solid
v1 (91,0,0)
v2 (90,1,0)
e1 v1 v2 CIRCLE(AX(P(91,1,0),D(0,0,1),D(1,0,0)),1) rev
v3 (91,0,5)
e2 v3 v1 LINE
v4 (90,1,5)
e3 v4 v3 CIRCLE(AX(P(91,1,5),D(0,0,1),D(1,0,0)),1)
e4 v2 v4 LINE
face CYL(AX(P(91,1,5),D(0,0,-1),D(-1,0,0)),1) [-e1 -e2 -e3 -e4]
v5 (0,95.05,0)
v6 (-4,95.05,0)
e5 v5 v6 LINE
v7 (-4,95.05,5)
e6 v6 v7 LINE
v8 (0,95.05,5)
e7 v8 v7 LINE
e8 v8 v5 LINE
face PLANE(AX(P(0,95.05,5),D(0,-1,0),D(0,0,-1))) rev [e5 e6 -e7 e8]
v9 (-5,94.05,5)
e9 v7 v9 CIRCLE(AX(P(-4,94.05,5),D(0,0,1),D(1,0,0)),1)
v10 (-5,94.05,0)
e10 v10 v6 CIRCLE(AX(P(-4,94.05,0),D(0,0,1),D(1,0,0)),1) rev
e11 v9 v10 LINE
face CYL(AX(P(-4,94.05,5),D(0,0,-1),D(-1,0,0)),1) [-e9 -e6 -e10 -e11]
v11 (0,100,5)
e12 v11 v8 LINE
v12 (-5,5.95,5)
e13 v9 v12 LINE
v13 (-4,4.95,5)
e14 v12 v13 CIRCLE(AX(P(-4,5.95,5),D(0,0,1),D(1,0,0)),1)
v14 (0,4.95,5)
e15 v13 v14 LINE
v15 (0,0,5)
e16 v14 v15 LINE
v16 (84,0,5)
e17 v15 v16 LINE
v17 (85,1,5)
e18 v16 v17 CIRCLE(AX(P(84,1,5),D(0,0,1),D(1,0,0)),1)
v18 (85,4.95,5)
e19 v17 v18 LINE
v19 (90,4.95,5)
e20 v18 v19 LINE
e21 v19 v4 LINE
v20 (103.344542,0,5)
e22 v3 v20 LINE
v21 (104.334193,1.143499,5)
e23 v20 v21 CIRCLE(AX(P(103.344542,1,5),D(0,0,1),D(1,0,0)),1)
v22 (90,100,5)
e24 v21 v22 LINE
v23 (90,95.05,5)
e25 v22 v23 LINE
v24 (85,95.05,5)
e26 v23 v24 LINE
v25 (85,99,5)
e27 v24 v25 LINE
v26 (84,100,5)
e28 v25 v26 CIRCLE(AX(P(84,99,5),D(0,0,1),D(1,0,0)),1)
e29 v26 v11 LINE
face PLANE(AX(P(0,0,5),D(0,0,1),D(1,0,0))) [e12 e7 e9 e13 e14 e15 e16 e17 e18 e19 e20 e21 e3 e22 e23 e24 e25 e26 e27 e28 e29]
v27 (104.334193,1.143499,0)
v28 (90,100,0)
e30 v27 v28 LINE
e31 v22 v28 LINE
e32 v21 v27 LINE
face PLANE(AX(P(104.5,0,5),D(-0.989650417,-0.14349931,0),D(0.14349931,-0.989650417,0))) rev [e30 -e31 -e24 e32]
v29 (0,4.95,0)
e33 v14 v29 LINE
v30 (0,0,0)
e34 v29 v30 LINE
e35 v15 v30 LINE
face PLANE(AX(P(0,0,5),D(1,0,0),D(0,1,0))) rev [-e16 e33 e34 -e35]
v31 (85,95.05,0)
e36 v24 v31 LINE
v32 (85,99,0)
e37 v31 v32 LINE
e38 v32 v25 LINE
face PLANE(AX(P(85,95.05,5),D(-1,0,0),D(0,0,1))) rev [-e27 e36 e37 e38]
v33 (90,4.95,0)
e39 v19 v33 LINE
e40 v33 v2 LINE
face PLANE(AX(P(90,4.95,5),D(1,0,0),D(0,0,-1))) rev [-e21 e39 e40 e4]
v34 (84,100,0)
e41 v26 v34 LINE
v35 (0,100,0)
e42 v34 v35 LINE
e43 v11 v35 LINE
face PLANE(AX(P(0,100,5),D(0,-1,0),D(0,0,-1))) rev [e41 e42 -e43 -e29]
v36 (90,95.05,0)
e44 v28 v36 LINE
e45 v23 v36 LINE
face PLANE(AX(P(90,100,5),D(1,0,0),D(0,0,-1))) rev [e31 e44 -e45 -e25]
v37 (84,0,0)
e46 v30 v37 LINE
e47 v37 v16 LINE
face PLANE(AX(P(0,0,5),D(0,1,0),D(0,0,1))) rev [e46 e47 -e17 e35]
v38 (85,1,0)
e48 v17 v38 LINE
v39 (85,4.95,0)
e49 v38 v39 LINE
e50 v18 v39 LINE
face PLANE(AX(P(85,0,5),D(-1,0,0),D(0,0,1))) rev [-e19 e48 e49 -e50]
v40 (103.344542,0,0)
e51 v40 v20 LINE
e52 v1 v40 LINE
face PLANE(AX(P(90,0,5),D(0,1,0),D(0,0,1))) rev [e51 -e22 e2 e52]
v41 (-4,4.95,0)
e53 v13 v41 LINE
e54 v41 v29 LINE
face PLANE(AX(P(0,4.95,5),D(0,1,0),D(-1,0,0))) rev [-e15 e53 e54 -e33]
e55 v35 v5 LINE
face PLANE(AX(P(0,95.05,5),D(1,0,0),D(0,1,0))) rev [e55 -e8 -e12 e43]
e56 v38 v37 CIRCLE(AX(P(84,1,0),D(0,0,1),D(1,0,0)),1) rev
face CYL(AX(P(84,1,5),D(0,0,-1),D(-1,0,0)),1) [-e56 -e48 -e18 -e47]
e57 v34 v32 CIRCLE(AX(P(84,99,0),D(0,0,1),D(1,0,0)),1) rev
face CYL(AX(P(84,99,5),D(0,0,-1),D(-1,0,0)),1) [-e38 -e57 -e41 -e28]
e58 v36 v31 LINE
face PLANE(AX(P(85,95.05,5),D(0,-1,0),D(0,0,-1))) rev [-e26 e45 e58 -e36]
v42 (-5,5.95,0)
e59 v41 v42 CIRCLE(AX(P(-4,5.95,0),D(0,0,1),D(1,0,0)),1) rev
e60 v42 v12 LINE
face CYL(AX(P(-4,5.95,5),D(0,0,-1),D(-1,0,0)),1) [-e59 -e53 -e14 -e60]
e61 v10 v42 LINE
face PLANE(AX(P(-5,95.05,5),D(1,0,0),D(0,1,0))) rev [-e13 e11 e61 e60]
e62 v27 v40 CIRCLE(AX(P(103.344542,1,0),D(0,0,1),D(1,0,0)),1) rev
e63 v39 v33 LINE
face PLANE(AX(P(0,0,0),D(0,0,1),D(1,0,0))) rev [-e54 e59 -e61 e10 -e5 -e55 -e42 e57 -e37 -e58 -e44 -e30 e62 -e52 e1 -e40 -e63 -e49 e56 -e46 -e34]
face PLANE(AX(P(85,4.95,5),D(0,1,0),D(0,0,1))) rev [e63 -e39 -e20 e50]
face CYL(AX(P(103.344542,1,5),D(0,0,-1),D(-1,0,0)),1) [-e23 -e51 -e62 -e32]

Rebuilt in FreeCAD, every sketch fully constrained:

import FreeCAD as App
import Part
import Sketcher
from FreeCAD import Vector


def edges_at(feature, points):
    """Names of the edges that pass closest to the given points."""
    edges = feature.Shape.Edges
    near = lambda p: min(range(len(edges)), key=lambda i: edges[i].distToShape(Part.Vertex(*p))[0])
    return sorted({f"Edge{near(p) + 1}" for p in points})


def add_polygon(sketch, points):
    """Adds a closed chain of lines whose ends are joined by coincident constraints."""
    first, n = sketch.GeometryCount, len(points)
    for a, b in zip(points, points[1:] + points[:1]):
        sketch.addGeometry(Part.LineSegment(App.Vector(*a, 0), App.Vector(*b, 0)), False)
    for i in range(n):
        sketch.addConstraint(Sketcher.Constraint("Coincident", first + i, 2, first + (i + 1) % n, 1))

doc = App.newDocument("Part")
body = doc.addObject("PartDesign::Body", "Body")

# Sketch on XY plane
sketch1 = body.newObject("Sketcher::SketchObject", "Sketch")
sketch1.AttachmentSupport = (doc.getObject("XY_Plane"), [""])
sketch1.MapMode = "FlatFace"
add_polygon(sketch1, [(0, 100), (0, 95), (-5, 95), (-5, 5), (0, 5), (0, 0), (85, 0), (85, 5), (90, 5), (90, 0), (104.5, 0), (90, 100), (90, 95), (85, 95), (85, 100)])  # lines 0-14
sketch1.addConstraint([
    Sketcher.Constraint("Vertical", 0),
    Sketcher.Constraint("Horizontal", 1),
    Sketcher.Constraint("Vertical", 2),
    Sketcher.Constraint("Horizontal", 3),
    Sketcher.Constraint("Vertical", 4),
    Sketcher.Constraint("Horizontal", 5),
    Sketcher.Constraint("Vertical", 6),
    Sketcher.Constraint("Horizontal", 7),
    Sketcher.Constraint("Vertical", 8),
    Sketcher.Constraint("Horizontal", 9),
    Sketcher.Constraint("Vertical", 11),
    Sketcher.Constraint("Horizontal", 12),
    Sketcher.Constraint("Vertical", 13),
    Sketcher.Constraint("Horizontal", 14),
    Sketcher.Constraint("Coincident", 4, 2, -1, 1),
    Sketcher.Constraint("PointOnObject", 0, 2, -2),
    Sketcher.Constraint("PointOnObject", 8, 2, -1),
    Sketcher.Constraint("Horizontal", 3, 2, 6, 2),
    Sketcher.Constraint("Horizontal", 1, 2, 11, 2),
    Sketcher.Constraint("Horizontal", 10, 2, 13, 2),
    Sketcher.Constraint("Vertical", 8, 2, 10, 2),
    Sketcher.Constraint("Vertical", 6, 2, 12, 2),
    Sketcher.Constraint("Equal", 3, 7),
    Sketcher.Constraint("Equal", 0, 4),
    Sketcher.Constraint("DistanceX", 1, 2, 1, 1, 5.0),
    Sketcher.Constraint("DistanceX", 5, 1, 5, 2, 85.0),
    Sketcher.Constraint("DistanceX", 9, 1, 9, 2, 14.5),
    Sketcher.Constraint("DistanceY", 2, 2, 2, 1, 90.1),
    Sketcher.Constraint("DistanceY", -1, 1, 10, 2, 100.0),
])
pad1 = body.newObject("PartDesign::Pad", "Pad")
pad1.Profile = sketch1
pad1.Length = 5
doc.recompute()

fillet = body.newObject("PartDesign::Fillet", "Fillet")
fillet.Base = (pad1, edges_at(pad1, [
    (-5, 4.95, 2.5),
    (-5, 95.05, 2.5),
    (85, 100, 2.5),
    (104.5, 0, 2.5),
    (90, 0, 2.5),
    (85, 0, 2.5),
]))
fillet.Radius = 1

doc.recompute()
